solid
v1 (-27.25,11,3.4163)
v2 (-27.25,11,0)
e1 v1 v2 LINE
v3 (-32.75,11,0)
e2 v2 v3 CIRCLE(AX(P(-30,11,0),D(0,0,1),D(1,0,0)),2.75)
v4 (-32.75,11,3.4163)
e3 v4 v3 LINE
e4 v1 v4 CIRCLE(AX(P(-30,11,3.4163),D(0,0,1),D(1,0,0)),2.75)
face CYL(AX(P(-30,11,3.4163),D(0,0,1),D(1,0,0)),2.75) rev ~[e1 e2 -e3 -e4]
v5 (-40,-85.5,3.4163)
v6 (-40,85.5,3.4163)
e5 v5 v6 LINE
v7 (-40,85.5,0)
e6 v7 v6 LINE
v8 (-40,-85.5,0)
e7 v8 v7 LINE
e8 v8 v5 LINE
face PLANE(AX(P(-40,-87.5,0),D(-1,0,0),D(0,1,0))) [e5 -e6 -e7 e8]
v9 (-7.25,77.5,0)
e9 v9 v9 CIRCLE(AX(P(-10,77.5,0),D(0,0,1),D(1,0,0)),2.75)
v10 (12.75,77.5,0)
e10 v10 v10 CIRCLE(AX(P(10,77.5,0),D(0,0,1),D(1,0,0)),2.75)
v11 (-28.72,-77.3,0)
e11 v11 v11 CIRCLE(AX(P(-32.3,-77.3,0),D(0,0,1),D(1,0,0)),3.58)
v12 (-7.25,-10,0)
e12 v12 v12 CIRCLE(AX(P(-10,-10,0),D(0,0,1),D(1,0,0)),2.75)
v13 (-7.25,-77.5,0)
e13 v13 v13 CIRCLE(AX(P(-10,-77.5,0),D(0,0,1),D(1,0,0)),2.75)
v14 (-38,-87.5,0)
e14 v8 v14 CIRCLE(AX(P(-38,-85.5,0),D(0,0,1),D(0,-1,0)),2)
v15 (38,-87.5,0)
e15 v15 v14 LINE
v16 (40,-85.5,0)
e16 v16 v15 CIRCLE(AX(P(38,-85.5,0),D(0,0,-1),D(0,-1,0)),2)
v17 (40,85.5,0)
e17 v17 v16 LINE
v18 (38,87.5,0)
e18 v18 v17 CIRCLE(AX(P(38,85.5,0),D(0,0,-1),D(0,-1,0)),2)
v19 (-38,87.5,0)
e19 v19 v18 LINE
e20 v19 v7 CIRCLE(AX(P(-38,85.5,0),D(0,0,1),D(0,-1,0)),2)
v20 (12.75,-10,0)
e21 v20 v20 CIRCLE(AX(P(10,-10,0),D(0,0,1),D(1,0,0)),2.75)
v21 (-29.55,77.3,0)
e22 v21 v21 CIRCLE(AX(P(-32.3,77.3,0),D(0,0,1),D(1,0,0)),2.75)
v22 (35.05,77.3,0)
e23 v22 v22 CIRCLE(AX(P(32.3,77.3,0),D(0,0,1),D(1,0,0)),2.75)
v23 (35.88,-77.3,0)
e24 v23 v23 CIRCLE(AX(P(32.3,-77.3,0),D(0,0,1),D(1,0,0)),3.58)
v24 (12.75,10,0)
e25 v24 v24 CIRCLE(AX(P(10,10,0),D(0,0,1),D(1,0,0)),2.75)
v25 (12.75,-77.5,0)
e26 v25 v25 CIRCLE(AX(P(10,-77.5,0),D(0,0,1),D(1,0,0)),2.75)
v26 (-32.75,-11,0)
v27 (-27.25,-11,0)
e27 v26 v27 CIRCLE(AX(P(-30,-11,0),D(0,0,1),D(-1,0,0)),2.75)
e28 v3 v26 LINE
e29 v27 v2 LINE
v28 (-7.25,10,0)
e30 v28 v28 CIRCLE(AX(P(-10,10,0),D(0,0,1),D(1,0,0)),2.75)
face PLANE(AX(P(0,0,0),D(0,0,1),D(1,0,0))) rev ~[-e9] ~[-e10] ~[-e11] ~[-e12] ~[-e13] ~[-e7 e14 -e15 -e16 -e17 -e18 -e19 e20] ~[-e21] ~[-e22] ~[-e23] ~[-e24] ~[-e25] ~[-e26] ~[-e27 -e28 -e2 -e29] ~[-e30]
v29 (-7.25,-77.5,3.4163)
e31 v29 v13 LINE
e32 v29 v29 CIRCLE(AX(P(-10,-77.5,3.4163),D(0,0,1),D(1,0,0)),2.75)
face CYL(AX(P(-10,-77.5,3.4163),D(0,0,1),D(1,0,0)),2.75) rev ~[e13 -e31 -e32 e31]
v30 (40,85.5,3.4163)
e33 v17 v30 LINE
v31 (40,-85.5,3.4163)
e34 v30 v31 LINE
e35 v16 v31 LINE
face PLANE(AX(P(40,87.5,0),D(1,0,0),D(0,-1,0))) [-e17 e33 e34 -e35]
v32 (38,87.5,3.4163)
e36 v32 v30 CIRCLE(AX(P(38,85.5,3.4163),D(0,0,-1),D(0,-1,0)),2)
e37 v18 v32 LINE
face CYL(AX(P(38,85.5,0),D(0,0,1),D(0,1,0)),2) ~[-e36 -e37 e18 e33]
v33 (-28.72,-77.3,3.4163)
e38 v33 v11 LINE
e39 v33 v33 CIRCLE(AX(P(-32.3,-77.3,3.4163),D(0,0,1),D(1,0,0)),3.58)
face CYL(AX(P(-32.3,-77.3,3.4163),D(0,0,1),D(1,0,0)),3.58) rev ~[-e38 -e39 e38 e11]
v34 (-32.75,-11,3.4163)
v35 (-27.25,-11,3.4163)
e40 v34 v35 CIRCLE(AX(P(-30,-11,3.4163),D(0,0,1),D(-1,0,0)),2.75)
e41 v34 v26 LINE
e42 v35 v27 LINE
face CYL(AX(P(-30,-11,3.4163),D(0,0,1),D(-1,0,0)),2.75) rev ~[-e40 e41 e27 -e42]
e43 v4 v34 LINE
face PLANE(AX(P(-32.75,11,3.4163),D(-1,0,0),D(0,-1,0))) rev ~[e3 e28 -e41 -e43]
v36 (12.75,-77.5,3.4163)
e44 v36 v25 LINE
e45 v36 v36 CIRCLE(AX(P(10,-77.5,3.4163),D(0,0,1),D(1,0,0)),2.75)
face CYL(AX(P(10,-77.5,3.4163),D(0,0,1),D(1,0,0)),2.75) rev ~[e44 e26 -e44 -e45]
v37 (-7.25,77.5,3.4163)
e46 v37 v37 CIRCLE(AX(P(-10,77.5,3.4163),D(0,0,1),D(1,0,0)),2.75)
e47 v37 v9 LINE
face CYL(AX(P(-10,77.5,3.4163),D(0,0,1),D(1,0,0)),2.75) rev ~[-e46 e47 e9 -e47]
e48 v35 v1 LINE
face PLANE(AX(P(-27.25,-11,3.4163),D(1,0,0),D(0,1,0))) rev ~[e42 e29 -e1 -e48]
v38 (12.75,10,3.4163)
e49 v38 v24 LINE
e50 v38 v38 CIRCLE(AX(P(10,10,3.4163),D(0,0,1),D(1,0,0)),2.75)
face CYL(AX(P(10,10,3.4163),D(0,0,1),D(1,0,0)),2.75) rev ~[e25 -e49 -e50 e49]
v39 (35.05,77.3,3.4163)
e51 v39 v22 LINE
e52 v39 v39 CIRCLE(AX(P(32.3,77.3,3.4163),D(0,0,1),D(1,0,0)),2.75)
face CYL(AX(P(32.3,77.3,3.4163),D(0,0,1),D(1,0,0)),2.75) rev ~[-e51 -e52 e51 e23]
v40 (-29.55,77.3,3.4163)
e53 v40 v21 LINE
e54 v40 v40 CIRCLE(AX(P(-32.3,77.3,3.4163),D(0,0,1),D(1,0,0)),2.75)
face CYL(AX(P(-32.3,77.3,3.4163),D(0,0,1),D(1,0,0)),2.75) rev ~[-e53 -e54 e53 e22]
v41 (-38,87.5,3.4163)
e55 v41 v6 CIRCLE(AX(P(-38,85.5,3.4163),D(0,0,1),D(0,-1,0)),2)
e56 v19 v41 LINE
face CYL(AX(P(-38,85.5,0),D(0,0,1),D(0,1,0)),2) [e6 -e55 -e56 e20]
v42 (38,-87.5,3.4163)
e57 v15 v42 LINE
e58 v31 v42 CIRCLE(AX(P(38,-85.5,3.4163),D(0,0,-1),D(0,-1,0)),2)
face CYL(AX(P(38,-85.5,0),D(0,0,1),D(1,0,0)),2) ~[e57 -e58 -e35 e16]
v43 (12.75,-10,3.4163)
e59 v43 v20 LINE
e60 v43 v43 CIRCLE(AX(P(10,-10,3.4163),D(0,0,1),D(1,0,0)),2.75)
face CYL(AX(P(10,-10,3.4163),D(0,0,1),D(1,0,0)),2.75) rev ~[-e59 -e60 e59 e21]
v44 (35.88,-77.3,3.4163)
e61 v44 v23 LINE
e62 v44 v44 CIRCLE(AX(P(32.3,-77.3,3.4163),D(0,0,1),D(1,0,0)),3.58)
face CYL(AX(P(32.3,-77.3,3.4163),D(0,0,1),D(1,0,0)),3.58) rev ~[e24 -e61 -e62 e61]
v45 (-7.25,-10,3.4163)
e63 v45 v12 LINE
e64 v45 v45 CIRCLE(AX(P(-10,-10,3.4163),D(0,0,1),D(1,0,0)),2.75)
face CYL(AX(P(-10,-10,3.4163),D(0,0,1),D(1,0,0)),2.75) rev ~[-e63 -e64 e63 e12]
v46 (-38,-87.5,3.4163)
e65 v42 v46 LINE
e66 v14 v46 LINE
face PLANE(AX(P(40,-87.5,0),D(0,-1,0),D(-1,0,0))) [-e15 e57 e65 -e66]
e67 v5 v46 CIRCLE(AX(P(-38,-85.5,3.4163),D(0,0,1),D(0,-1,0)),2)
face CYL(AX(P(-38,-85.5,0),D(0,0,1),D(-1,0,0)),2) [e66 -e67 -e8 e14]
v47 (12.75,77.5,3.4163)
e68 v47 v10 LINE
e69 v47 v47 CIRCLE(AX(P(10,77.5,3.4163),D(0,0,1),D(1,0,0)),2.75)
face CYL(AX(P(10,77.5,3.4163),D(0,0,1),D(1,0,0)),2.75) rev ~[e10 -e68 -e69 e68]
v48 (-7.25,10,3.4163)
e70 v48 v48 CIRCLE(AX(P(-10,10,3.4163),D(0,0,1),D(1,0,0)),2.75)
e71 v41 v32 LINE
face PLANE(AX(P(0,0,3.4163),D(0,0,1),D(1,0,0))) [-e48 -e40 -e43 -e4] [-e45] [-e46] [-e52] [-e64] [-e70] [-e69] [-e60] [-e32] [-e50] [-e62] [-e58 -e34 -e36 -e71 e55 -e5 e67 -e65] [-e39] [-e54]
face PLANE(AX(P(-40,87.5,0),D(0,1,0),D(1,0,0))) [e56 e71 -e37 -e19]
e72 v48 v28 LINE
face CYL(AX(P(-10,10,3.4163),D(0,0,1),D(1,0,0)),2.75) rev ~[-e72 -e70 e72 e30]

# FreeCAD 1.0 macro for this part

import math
import FreeCAD as App
import Part
import Sketcher


def edges_at(feature, points):
    """Names of the edges that pass closest to the given points."""
    edges = feature.Shape.Edges
    near = lambda p: min(range(len(edges)), key=lambda i: edges[i].distToShape(Part.Vertex(*p))[0])
    return sorted({f"Edge{near(p) + 1}" for p in points})

doc = App.newDocument("Part")
body = doc.addObject("PartDesign::Body", "Body")

# Sketch on XY plane
sketch1 = doc.addObject("Sketcher::SketchObject", "Sketch")
body.addObject(sketch1)
sketch1.AttachmentSupport = (doc.XY_Plane, [""])
sketch1.MapMode = "FlatFace"
sketch1.addGeometry(Part.LineSegment(App.Vector(40, 88, 0), App.Vector(-40, 88, 0)), False)
sketch1.addGeometry(Part.LineSegment(App.Vector(-40, 88, 0), App.Vector(-40, -88, 0)), False)
sketch1.addGeometry(Part.LineSegment(App.Vector(-40, -88, 0), App.Vector(40, -88, 0)), False)
sketch1.addGeometry(Part.LineSegment(App.Vector(40, -88, 0), App.Vector(40, 88, 0)), False)
sketch1.addConstraint(Sketcher.Constraint("Coincident", 0, 2, 1, 1))
sketch1.addConstraint(Sketcher.Constraint("Coincident", 1, 2, 2, 1))
sketch1.addConstraint(Sketcher.Constraint("Coincident", 2, 2, 3, 1))
sketch1.addConstraint(Sketcher.Constraint("Coincident", 3, 2, 0, 1))
sketch1.addConstraint(Sketcher.Constraint("Horizontal", 0))
sketch1.addConstraint(Sketcher.Constraint("Vertical", 1))
sketch1.addConstraint(Sketcher.Constraint("Horizontal", 2))
sketch1.addConstraint(Sketcher.Constraint("Vertical", 3))
sketch1.addConstraint(Sketcher.Constraint("Symmetric", 0, 2, 2, 2, -1, 1))
sketch1.addConstraint(Sketcher.Constraint("DistanceX", 0, 2, 0, 1, 80.0))
sketch1.addConstraint(Sketcher.Constraint("DistanceY", 1, 2, 1, 1, 175.0))
pad1 = doc.addObject("PartDesign::Pad", "Pad")
body.addObject(pad1)
pad1.Profile = sketch1
pad1.Length = 3.4163

# Sketch on XY plane
sketch2 = doc.addObject("Sketcher::SketchObject", "Sketch001")
body.addObject(sketch2)
sketch2.AttachmentSupport = (doc.XY_Plane, [""])
sketch2.MapMode = "FlatFace"
sketch2.AttachmentOffset = App.Placement(App.Vector(0, 0, 3.4163), App.Rotation())
sketch2.addGeometry(Part.Circle(App.Vector(-32.3, 77.3, 0), App.Vector(0, 0, 1), 2.8), False)
sketch2.addGeometry(Part.Circle(App.Vector(32.3, 77.3, 0), App.Vector(0, 0, 1), 2.8), False)
sketch2.addConstraint(Sketcher.Constraint("Equal", 0, 1))
sketch2.addConstraint(Sketcher.Constraint("Symmetric", 0, 3, 1, 3, -2))
sketch2.addConstraint(Sketcher.Constraint("Diameter", 0, 5.5))
sketch2.addConstraint(Sketcher.Constraint("DistanceX", 0, 3, 1, 3, 64.6))
sketch2.addConstraint(Sketcher.Constraint("DistanceY", -1, 1, 0, 3, 77.3))
pocket1 = doc.addObject("PartDesign::Pocket", "Pocket")
body.addObject(pocket1)
pocket1.Profile = sketch2
pocket1.Type = "ThroughAll"
doc.recompute()

linearpattern = doc.addObject("PartDesign::LinearPattern", "LinearPattern")
body.addObject(linearpattern)
linearpattern.Originals = [pocket1]
linearpattern.Direction = (doc.Y_Axis, [""])
linearpattern.Mode = "offset"
linearpattern.Offset = 154.6
linearpattern.Occurrences = 2
linearpattern.Reversed = True
body.Tip = linearpattern

# Sketch on XY plane
sketch3 = doc.addObject("Sketcher::SketchObject", "Sketch002")
body.addObject(sketch3)
sketch3.AttachmentSupport = (doc.XY_Plane, [""])
sketch3.MapMode = "FlatFace"
sketch3.AttachmentOffset = App.Placement(App.Vector(0, 0, 3.4163), App.Rotation())
sketch3.addGeometry(Part.ArcOfCircle(Part.Circle(App.Vector(-30, 11, 0), App.Vector(0, 0, 1), 2.8), math.radians(0), math.radians(180)), False)
sketch3.addGeometry(Part.LineSegment(App.Vector(-32.8, 11, 0), App.Vector(-32.8, -11, 0)), False)
sketch3.addGeometry(Part.ArcOfCircle(Part.Circle(App.Vector(-30, -11, 0), App.Vector(0, 0, 1), 2.8), math.radians(180), math.radians(360)), False)
sketch3.addGeometry(Part.LineSegment(App.Vector(-27.2, -11, 0), App.Vector(-27.2, 11, 0)), False)
sketch3.addConstraint(Sketcher.Constraint("Tangent", 0, 2, 1, 1))
sketch3.addConstraint(Sketcher.Constraint("Tangent", 1, 2, 2, 1))
sketch3.addConstraint(Sketcher.Constraint("Tangent", 2, 2, 3, 1))
sketch3.addConstraint(Sketcher.Constraint("Tangent", 3, 2, 0, 1))
sketch3.addConstraint(Sketcher.Constraint("Vertical", 1))
sketch3.addConstraint(Sketcher.Constraint("Vertical", 3))
sketch3.addConstraint(Sketcher.Constraint("DistanceY", 1, 2, 1, 1, 22.0))
sketch3.addConstraint(Sketcher.Constraint("Radius", 0, 2.75))
sketch3.addConstraint(Sketcher.Constraint("DistanceX", 0, 3, -1, 1, 30.0))
sketch3.addConstraint(Sketcher.Constraint("DistanceY", -1, 1, 0, 3, 11.0))
pocket2 = doc.addObject("PartDesign::Pocket", "Pocket001")
body.addObject(pocket2)
pocket2.Profile = sketch3
pocket2.Type = "ThroughAll"

# Sketch on XY plane
sketch4 = doc.addObject("Sketcher::SketchObject", "Sketch003")
body.addObject(sketch4)
sketch4.AttachmentSupport = (doc.XY_Plane, [""])
sketch4.MapMode = "FlatFace"
sketch4.AttachmentOffset = App.Placement(App.Vector(0, 0, 3.4163), App.Rotation())
sketch4.addGeometry(Part.Circle(App.Vector(-32.3, -77.3, 0), App.Vector(0, 0, 1), 3.6), False)
sketch4.addGeometry(Part.Circle(App.Vector(-32.3, -77.3, 0), App.Vector(0, 0, 1), 2.8), False)
sketch4.addGeometry(Part.Circle(App.Vector(32.3, -77.3, 0), App.Vector(0, 0, 1), 3.6), False)
sketch4.addGeometry(Part.Circle(App.Vector(32.3, -77.3, 0), App.Vector(0, 0, 1), 2.8), False)
sketch4.addConstraint(Sketcher.Constraint("Coincident", 1, 3, 0, 3))
sketch4.addConstraint(Sketcher.Constraint("Coincident", 3, 3, 2, 3))
sketch4.addConstraint(Sketcher.Constraint("Equal", 0, 2))
sketch4.addConstraint(Sketcher.Constraint("Equal", 1, 3))
sketch4.addConstraint(Sketcher.Constraint("Symmetric", 0, 3, 2, 3, -2))
sketch4.addConstraint(Sketcher.Constraint("Diameter", 0, 7.16))
sketch4.addConstraint(Sketcher.Constraint("Diameter", 1, 5.5))
sketch4.addConstraint(Sketcher.Constraint("DistanceX", 0, 3, -1, 1, 32.3))
sketch4.addConstraint(Sketcher.Constraint("DistanceY", 0, 3, -1, 1, 77.3))
pocket3 = doc.addObject("PartDesign::Pocket", "Pocket002")
body.addObject(pocket3)
pocket3.Profile = sketch4
pocket3.Type = "ThroughAll"
doc.recompute()

fillet = doc.addObject("PartDesign::Fillet", "Fillet")
body.addObject(fillet)
fillet.Base = (pocket3, edges_at(pocket3, [
    (40, 87.5, 1.708),
    (-40, 87.5, 1.708),
    (-40, -87.5, 1.708),
    (40, -87.5, 1.708),
]))
fillet.Radius = 2

# Sketch on XY plane
sketch5 = doc.addObject("Sketcher::SketchObject", "Sketch004")
body.addObject(sketch5)
sketch5.AttachmentSupport = (doc.XY_Plane, [""])
sketch5.MapMode = "FlatFace"
sketch5.AttachmentOffset = App.Placement(App.Vector(0, 0, 3.4163), App.Rotation())
sketch5.addGeometry(Part.Circle(App.Vector(-10, 77.5, 0), App.Vector(0, 0, 1), 2.8), False)
sketch5.addGeometry(Part.Circle(App.Vector(-10, 10, 0), App.Vector(0, 0, 1), 2.8), False)
sketch5.addGeometry(Part.Circle(App.Vector(-10, -10, 0), App.Vector(0, 0, 1), 2.8), False)
sketch5.addGeometry(Part.Circle(App.Vector(-10, -77.5, 0), App.Vector(0, 0, 1), 2.8), False)
sketch5.addConstraint(Sketcher.Constraint("Equal", 0, 1))
sketch5.addConstraint(Sketcher.Constraint("Equal", 1, 2))
sketch5.addConstraint(Sketcher.Constraint("Equal", 2, 3))
sketch5.addConstraint(Sketcher.Constraint("Symmetric", 1, 3, 2, 3, -1))
sketch5.addConstraint(Sketcher.Constraint("Symmetric", 0, 3, 3, 3, -1))
sketch5.addConstraint(Sketcher.Constraint("Vertical", 0, 3, 1, 3))
sketch5.addConstraint(Sketcher.Constraint("Diameter", 0, 5.5))
sketch5.addConstraint(Sketcher.Constraint("DistanceX", 0, 3, -1, 1, 10.0))
sketch5.addConstraint(Sketcher.Constraint("DistanceY", -1, 1, 1, 3, 10.0))
sketch5.addConstraint(Sketcher.Constraint("DistanceY", -1, 1, 0, 3, 77.5))
pocket4 = doc.addObject("PartDesign::Pocket", "Pocket003")
body.addObject(pocket4)
pocket4.Profile = sketch5
pocket4.Type = "ThroughAll"
doc.recompute()

linearpattern2 = doc.addObject("PartDesign::LinearPattern", "LinearPattern001")
body.addObject(linearpattern2)
linearpattern2.Originals = [pocket4]
linearpattern2.Direction = (doc.X_Axis, [""])
linearpattern2.Mode = "offset"
linearpattern2.Offset = 20
linearpattern2.Occurrences = 2
body.Tip = linearpattern2

doc.recompute()
